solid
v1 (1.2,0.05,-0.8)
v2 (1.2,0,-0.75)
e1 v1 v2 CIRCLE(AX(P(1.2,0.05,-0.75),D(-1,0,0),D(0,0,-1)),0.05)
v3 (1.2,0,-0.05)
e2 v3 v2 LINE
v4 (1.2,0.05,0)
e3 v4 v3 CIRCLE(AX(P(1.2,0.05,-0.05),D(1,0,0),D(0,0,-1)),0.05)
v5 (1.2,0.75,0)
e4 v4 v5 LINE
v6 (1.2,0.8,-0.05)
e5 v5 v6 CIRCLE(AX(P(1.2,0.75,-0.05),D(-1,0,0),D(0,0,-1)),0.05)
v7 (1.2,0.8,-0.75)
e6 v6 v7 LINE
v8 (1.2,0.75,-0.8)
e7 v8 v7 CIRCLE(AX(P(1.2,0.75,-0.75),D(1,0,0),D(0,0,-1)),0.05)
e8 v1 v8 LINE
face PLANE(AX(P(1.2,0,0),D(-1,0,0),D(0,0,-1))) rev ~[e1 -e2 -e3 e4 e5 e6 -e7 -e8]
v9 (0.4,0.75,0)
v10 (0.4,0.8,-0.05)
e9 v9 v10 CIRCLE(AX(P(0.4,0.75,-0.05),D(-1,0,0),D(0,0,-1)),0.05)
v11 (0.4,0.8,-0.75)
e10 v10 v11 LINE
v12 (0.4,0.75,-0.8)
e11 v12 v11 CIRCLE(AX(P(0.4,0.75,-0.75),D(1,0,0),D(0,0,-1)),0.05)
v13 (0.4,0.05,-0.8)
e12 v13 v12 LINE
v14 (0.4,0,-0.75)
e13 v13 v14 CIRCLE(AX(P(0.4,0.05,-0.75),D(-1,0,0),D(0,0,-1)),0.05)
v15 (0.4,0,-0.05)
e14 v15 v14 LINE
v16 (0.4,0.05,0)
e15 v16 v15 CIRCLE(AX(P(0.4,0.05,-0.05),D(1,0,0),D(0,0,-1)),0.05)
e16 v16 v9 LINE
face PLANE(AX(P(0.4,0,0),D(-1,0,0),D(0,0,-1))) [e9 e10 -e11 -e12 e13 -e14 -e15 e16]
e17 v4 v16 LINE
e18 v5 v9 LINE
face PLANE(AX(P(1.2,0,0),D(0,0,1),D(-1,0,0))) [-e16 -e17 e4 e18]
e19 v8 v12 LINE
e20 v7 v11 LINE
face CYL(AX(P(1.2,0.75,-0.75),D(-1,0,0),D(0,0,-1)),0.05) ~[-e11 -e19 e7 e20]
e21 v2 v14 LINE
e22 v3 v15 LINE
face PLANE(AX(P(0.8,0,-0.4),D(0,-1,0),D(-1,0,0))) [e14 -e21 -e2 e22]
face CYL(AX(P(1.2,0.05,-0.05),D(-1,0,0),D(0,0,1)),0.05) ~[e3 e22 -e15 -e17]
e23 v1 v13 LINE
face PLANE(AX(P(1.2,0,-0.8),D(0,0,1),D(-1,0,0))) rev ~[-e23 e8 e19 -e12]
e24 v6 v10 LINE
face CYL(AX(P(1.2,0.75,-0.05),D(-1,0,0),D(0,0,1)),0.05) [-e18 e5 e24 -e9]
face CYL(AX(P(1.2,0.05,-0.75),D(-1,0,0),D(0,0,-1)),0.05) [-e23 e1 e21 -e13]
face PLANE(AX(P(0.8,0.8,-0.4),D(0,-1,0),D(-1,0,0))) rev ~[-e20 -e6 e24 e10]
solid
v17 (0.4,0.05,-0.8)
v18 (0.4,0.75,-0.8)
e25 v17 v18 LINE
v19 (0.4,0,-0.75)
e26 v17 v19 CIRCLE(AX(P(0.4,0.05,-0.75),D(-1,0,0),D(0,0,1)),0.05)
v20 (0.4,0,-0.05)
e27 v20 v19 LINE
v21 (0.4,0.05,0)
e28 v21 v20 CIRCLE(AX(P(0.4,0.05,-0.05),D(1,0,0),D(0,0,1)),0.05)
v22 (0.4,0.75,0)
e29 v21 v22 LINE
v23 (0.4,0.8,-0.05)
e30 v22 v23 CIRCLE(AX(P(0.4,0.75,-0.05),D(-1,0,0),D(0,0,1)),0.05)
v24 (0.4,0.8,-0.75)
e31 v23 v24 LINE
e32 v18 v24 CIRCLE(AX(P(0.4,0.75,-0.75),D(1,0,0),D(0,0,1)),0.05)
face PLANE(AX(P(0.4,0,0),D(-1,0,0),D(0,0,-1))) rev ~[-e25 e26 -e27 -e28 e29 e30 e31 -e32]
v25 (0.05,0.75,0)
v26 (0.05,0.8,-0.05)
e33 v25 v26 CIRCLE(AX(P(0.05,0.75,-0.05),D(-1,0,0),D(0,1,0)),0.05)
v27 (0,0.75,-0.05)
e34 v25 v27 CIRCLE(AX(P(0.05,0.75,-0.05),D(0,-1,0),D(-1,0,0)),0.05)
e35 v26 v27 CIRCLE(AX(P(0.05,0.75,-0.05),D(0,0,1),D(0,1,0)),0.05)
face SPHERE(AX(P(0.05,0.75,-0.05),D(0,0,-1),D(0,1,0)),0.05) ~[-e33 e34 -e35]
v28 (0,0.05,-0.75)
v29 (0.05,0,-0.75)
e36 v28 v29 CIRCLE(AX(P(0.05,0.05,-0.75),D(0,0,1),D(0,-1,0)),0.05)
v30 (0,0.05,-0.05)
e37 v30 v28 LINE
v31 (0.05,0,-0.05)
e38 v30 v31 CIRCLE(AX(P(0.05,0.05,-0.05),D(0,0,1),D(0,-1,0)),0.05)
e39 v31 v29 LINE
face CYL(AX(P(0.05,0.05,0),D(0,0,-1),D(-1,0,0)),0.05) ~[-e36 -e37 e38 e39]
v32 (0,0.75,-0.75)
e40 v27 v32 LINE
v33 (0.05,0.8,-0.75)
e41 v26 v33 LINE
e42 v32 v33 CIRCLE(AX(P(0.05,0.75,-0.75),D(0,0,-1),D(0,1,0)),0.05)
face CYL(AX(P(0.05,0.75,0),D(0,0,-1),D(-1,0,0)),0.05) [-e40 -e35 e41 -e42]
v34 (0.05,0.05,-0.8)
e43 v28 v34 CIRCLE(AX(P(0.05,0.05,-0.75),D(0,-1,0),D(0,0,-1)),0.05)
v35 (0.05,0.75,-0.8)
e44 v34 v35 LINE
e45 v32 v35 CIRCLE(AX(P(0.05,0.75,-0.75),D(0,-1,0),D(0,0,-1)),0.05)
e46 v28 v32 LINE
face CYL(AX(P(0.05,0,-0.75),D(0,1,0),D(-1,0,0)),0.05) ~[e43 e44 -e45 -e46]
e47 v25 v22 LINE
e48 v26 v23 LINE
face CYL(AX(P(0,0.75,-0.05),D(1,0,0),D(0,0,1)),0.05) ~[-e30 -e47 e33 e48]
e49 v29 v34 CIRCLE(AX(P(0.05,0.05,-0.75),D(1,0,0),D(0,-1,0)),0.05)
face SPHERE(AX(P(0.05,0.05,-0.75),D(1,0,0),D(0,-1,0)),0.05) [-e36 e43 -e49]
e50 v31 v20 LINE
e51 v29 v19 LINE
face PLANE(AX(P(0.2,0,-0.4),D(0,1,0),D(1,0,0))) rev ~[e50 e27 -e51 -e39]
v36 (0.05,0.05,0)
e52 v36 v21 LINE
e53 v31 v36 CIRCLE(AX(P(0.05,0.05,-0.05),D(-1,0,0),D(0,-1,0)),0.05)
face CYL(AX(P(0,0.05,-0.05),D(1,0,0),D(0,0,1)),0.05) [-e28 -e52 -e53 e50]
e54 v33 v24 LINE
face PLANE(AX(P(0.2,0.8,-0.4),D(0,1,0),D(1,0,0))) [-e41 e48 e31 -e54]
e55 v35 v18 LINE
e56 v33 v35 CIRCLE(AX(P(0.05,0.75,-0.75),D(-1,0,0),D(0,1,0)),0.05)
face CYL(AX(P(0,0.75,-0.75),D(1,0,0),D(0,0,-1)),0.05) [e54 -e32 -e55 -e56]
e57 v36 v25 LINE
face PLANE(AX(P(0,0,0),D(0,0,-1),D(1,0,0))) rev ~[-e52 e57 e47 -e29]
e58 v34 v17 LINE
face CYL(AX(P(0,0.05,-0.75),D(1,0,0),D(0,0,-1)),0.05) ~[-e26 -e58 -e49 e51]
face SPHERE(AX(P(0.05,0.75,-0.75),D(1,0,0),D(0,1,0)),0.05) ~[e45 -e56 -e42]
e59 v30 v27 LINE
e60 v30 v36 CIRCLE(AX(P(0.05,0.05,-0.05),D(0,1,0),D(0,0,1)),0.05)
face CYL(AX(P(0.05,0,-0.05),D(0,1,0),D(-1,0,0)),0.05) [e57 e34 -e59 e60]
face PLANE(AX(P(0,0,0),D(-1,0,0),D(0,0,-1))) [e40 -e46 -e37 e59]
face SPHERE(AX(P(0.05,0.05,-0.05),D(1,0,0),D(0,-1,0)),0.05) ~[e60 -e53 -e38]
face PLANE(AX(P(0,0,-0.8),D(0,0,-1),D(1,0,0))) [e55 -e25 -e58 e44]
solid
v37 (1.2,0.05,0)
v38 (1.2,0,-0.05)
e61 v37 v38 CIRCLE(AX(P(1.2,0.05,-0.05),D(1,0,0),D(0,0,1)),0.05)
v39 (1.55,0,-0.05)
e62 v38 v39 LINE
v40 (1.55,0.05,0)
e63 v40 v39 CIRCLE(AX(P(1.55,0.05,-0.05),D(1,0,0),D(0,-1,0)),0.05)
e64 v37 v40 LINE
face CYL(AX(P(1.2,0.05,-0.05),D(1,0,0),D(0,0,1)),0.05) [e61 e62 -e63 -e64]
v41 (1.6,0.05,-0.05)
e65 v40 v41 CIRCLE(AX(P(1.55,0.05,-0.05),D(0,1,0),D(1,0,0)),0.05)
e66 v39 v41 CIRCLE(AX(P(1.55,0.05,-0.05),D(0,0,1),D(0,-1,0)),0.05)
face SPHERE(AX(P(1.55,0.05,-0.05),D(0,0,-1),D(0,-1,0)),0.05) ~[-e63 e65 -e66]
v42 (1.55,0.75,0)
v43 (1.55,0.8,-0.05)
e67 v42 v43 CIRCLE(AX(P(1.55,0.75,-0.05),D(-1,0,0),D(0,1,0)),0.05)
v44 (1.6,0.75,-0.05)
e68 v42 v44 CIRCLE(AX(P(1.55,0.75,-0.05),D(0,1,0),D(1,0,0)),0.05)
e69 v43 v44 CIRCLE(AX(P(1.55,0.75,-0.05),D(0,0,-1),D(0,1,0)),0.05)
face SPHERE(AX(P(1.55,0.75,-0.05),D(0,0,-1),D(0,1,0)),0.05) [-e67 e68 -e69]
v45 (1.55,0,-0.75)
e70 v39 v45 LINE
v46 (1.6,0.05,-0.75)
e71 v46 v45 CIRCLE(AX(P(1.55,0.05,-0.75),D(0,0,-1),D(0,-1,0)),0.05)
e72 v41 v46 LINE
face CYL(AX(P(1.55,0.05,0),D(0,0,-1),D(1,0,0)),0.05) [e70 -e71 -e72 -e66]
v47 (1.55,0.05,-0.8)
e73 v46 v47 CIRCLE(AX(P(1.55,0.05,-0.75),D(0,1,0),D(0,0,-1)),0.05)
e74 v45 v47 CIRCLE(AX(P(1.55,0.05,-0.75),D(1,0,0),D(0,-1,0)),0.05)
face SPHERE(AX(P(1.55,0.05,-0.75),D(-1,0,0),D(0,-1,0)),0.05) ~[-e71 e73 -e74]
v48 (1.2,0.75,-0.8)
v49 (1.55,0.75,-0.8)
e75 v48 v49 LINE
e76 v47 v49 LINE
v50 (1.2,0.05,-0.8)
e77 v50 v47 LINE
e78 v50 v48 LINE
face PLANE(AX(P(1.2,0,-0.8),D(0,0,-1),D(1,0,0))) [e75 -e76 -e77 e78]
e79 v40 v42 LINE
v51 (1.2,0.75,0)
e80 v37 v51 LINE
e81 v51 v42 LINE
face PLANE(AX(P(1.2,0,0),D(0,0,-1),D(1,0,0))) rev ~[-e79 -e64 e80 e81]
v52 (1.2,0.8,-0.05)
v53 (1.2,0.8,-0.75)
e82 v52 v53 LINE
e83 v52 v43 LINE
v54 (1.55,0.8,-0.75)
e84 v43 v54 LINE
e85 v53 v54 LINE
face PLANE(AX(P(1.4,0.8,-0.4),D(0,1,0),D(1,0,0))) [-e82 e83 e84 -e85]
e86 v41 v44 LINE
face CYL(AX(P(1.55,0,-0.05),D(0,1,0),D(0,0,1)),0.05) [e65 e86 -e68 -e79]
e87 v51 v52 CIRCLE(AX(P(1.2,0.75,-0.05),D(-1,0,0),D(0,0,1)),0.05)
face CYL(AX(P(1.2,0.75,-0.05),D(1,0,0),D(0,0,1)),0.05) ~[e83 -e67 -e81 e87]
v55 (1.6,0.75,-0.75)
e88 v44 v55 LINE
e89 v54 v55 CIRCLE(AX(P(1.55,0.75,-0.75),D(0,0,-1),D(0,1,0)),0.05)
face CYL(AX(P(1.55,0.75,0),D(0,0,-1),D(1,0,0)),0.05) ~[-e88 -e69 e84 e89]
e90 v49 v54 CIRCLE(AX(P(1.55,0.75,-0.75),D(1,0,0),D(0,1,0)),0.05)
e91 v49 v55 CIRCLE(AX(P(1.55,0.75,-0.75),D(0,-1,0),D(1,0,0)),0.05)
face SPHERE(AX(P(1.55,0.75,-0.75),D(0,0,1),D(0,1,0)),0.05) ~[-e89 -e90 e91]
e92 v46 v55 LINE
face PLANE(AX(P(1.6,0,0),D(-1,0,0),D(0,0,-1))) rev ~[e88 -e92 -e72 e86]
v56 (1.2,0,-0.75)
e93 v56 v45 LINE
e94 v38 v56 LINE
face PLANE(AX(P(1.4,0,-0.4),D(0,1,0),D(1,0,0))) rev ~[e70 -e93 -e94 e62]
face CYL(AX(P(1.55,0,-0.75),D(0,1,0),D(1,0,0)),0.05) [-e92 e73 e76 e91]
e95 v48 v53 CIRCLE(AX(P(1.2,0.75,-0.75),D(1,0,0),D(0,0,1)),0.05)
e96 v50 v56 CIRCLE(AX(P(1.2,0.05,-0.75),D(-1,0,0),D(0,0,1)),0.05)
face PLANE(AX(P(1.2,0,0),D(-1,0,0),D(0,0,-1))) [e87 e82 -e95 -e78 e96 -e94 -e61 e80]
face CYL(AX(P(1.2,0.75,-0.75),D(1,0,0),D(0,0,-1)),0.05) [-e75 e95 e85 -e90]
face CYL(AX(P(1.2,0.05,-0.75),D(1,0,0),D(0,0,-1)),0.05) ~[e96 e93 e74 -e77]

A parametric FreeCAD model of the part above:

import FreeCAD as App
import Part
import Sketcher

V = App.Vector
Q = App.Units.Quantity


def edges_at(feature, points):
    """Names of the edges that pass closest to the given points."""
    edges = feature.Shape.Edges
    near = lambda p: min(range(len(edges)), key=lambda i: edges[i].distToShape(Part.Vertex(*p))[0])
    return sorted({f"Edge{near(p) + 1}" for p in points})


def add_polygon(sketch, points):
    """Adds a closed chain of lines whose ends are joined by coincident constraints."""
    first, n = sketch.GeometryCount, len(points)
    for a, b in zip(points, points[1:] + points[:1]):
        sketch.addGeometry(Part.LineSegment(App.Vector(*a, 0), App.Vector(*b, 0)), False)
    for i in range(n):
        sketch.addConstraint(Sketcher.Constraint("Coincident", first + i, 2, first + (i + 1) % n, 1))

doc = App.newDocument("Part")
body = doc.addObject("PartDesign::Body", "Body")

# Sketch on XZ plane
sketch1 = body.newObject("Sketcher::SketchObject", "Sketch")
sketch1.AttachmentSupport = (doc.getObject("XZ_Plane"), [""])
sketch1.MapMode = "FlatFace"
add_polygon(sketch1, [(0, -0.8), (0, 0), (0.4, 0), (0.4, -0.8)])  # lines 0-3
sketch1.addConstraint(Sketcher.Constraint("Vertical", 0))
sketch1.addConstraint(Sketcher.Constraint("Horizontal", 1))
sketch1.addConstraint(Sketcher.Constraint("Vertical", 2))
sketch1.addConstraint(Sketcher.Constraint("Horizontal", 3))
sketch1.addConstraint(Sketcher.Constraint("Coincident", 0, 2, -1, 1))
sketch1.addConstraint(Sketcher.Constraint("DistanceX", 1, 1, 1, 2, Q("0.4 mm")))
sketch1.addConstraint(Sketcher.Constraint("DistanceY", 0, 1, 0, 2, Q("0.8 mm")))
pad1 = body.newObject("PartDesign::Pad", "Pad")
pad1.Profile = sketch1
pad1.Length = 0.8
pad1.Reversed = True
doc.recompute()

fillet = body.newObject("PartDesign::Fillet", "Fillet")
fillet.Base = (pad1, edges_at(pad1, [
    (0.2, 0.8, -0.8),
    (0, 0.8, -0.4),
    (0.2, 0, -0.8),
    (0.2, 0, 0),
    (0, 0, -0.4),
    (0.2, 0.8, 0),
    (0, 0.4, -0.8),
    (0, 0.4, 0),
]))
fillet.Radius = 0.05
body2 = doc.addObject("PartDesign::Body", "Body001")

# Sketch on XZ plane
sketch2 = body2.newObject("Sketcher::SketchObject", "Sketch001")
sketch2.AttachmentSupport = (doc.getObject("XZ_Plane001"), [""])
sketch2.MapMode = "FlatFace"
add_polygon(sketch2, [(1.2, -0.8), (1.2, 0), (1.6, 0), (1.6, -0.8)])  # lines 0-3
sketch2.addConstraint(Sketcher.Constraint("Vertical", 0))
sketch2.addConstraint(Sketcher.Constraint("Horizontal", 1))
sketch2.addConstraint(Sketcher.Constraint("Vertical", 2))
sketch2.addConstraint(Sketcher.Constraint("Horizontal", 3))
sketch2.addConstraint(Sketcher.Constraint("PointOnObject", 0, 2, -1))
sketch2.addConstraint(Sketcher.Constraint("DistanceX", 1, 1, 1, 2, Q("0.4 mm")))
sketch2.addConstraint(Sketcher.Constraint("DistanceY", 0, 1, 0, 2, Q("0.8 mm")))
sketch2.addConstraint(Sketcher.Constraint("DistanceX", -1, 1, 0, 2, Q("1.2 mm")))
pad2 = body2.newObject("PartDesign::Pad", "Pad001")
pad2.Profile = sketch2
pad2.Length = 0.8
pad2.Reversed = True
doc.recompute()

fillet2 = body2.newObject("PartDesign::Fillet", "Fillet001")
fillet2.Base = (pad2, edges_at(pad2, [
    (1.6, 0.8, -0.4),
    (1.4, 0.8, -0.8),
    (1.4, 0, -0.8),
    (1.6, 0, -0.4),
    (1.4, 0, 0),
    (1.4, 0.8, 0),
    (1.6, 0.4, -0.8),
    (1.6, 0.4, 0),
]))
fillet2.Radius = 0.05
body3 = doc.addObject("PartDesign::Body", "Body002")

# Sketch on XZ plane
sketch3 = body3.newObject("Sketcher::SketchObject", "Sketch002")
sketch3.AttachmentSupport = (doc.getObject("XZ_Plane002"), [""])
sketch3.MapMode = "FlatFace"
add_polygon(sketch3, [(1.2, -0.8), (1.2, 0), (0.4, 0), (0.4, -0.8)])  # lines 0-3
sketch3.addConstraint(Sketcher.Constraint("Vertical", 0))
sketch3.addConstraint(Sketcher.Constraint("Horizontal", 1))
sketch3.addConstraint(Sketcher.Constraint("Vertical", 2))
sketch3.addConstraint(Sketcher.Constraint("Horizontal", 3))
sketch3.addConstraint(Sketcher.Constraint("PointOnObject", 0, 2, -1))
sketch3.addConstraint(Sketcher.Constraint("Equal", 3, 0))
sketch3.addConstraint(Sketcher.Constraint("DistanceX", 1, 2, 1, 1, Q("0.8 mm")))
sketch3.addConstraint(Sketcher.Constraint("DistanceX", -1, 1, 0, 2, Q("1.2 mm")))
pad3 = body3.newObject("PartDesign::Pad", "Pad002")
pad3.Profile = sketch3
pad3.Length = 0.8
pad3.Reversed = True
doc.recompute()

fillet3 = body3.newObject("PartDesign::Fillet", "Fillet002")
fillet3.Base = (pad3, edges_at(pad3, [
    (0.8, 0.8, 0),
    (0.8, 0, 0),
    (0.8, 0, -0.8),
    (0.8, 0.8, -0.8),
]))
fillet3.Radius = 0.05

doc.recompute()
